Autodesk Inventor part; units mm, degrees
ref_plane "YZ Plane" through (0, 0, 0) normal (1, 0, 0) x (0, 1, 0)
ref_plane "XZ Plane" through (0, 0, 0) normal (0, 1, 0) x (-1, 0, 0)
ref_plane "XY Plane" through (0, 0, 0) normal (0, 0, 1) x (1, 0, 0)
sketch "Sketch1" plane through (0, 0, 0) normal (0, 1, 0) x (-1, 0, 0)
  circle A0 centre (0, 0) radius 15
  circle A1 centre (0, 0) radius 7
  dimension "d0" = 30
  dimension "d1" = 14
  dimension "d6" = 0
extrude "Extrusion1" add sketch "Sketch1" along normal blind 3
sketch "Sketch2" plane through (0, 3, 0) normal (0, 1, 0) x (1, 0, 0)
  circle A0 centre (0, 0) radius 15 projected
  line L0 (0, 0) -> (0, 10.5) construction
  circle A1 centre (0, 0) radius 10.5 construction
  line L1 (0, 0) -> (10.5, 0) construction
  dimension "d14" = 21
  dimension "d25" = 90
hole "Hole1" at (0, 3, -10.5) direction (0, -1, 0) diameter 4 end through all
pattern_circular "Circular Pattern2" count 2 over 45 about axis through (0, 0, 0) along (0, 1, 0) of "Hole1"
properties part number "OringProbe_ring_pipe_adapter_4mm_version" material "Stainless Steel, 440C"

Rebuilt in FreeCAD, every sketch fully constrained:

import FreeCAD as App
import Part
import Sketcher

V = App.Vector

doc = App.newDocument("Part")
body = doc.addObject("PartDesign::Body", "Body")

# Sketch on XZ plane
sketch1 = body.newObject("Sketcher::SketchObject", "Sketch")
sketch1.AttachmentSupport = (doc.getObject("XZ_Plane"), [""])
sketch1.MapMode = "FlatFace"
sketch1.addGeometry(Part.Circle(V(0, 0, 0), V(0, 0, 1), 15), False)
sketch1.addGeometry(Part.Circle(V(0, 0, 0), V(0, 0, 1), 7), False)
sketch1.addConstraint(Sketcher.Constraint("Coincident", 0, 3, -1, 1))
sketch1.addConstraint(Sketcher.Constraint("Coincident", 1, 3, -1, 1))
sketch1.addConstraint(Sketcher.Constraint("Diameter", 0, 30.0))
sketch1.addConstraint(Sketcher.Constraint("Diameter", 1, 14.0))
pad1 = body.newObject("PartDesign::Pad", "Pad")
pad1.Profile = sketch1
pad1.Length = 3
pad1.Reversed = True

# Sketch on XZ plane
sketch2 = body.newObject("Sketcher::SketchObject", "Sketch001")
sketch2.AttachmentSupport = (doc.getObject("XZ_Plane"), [""])
sketch2.MapMode = "FlatFace"
sketch2.AttachmentOffset = App.Placement(V(0, 0, -3), App.Rotation())
sketch2.addGeometry(Part.Circle(V(0, -10.5, 0), V(0, 0, 1), 2), False)
sketch2.addConstraint(Sketcher.Constraint("PointOnObject", 0, 3, -2))
sketch2.addConstraint(Sketcher.Constraint("Diameter", 0, 4.0))
sketch2.addConstraint(Sketcher.Constraint("DistanceY", 0, 3, -1, 1, 10.5))
doc.recompute()
hole = body.newObject("PartDesign::Hole", "Hole")
hole.Profile = sketch2
hole.ThreadType = "None"
hole.Diameter = 4
hole.DepthType = "ThroughAll"
hole.Reversed = True
doc.recompute()

polarpattern = body.newObject("PartDesign::PolarPattern", "PolarPattern")
polarpattern.Originals = [hole]
polarpattern.Axis = (doc.getObject("Y_Axis"), [""])
polarpattern.Angle = 45
polarpattern.Occurrences = 2
body.Tip = polarpattern

doc.recompute()
